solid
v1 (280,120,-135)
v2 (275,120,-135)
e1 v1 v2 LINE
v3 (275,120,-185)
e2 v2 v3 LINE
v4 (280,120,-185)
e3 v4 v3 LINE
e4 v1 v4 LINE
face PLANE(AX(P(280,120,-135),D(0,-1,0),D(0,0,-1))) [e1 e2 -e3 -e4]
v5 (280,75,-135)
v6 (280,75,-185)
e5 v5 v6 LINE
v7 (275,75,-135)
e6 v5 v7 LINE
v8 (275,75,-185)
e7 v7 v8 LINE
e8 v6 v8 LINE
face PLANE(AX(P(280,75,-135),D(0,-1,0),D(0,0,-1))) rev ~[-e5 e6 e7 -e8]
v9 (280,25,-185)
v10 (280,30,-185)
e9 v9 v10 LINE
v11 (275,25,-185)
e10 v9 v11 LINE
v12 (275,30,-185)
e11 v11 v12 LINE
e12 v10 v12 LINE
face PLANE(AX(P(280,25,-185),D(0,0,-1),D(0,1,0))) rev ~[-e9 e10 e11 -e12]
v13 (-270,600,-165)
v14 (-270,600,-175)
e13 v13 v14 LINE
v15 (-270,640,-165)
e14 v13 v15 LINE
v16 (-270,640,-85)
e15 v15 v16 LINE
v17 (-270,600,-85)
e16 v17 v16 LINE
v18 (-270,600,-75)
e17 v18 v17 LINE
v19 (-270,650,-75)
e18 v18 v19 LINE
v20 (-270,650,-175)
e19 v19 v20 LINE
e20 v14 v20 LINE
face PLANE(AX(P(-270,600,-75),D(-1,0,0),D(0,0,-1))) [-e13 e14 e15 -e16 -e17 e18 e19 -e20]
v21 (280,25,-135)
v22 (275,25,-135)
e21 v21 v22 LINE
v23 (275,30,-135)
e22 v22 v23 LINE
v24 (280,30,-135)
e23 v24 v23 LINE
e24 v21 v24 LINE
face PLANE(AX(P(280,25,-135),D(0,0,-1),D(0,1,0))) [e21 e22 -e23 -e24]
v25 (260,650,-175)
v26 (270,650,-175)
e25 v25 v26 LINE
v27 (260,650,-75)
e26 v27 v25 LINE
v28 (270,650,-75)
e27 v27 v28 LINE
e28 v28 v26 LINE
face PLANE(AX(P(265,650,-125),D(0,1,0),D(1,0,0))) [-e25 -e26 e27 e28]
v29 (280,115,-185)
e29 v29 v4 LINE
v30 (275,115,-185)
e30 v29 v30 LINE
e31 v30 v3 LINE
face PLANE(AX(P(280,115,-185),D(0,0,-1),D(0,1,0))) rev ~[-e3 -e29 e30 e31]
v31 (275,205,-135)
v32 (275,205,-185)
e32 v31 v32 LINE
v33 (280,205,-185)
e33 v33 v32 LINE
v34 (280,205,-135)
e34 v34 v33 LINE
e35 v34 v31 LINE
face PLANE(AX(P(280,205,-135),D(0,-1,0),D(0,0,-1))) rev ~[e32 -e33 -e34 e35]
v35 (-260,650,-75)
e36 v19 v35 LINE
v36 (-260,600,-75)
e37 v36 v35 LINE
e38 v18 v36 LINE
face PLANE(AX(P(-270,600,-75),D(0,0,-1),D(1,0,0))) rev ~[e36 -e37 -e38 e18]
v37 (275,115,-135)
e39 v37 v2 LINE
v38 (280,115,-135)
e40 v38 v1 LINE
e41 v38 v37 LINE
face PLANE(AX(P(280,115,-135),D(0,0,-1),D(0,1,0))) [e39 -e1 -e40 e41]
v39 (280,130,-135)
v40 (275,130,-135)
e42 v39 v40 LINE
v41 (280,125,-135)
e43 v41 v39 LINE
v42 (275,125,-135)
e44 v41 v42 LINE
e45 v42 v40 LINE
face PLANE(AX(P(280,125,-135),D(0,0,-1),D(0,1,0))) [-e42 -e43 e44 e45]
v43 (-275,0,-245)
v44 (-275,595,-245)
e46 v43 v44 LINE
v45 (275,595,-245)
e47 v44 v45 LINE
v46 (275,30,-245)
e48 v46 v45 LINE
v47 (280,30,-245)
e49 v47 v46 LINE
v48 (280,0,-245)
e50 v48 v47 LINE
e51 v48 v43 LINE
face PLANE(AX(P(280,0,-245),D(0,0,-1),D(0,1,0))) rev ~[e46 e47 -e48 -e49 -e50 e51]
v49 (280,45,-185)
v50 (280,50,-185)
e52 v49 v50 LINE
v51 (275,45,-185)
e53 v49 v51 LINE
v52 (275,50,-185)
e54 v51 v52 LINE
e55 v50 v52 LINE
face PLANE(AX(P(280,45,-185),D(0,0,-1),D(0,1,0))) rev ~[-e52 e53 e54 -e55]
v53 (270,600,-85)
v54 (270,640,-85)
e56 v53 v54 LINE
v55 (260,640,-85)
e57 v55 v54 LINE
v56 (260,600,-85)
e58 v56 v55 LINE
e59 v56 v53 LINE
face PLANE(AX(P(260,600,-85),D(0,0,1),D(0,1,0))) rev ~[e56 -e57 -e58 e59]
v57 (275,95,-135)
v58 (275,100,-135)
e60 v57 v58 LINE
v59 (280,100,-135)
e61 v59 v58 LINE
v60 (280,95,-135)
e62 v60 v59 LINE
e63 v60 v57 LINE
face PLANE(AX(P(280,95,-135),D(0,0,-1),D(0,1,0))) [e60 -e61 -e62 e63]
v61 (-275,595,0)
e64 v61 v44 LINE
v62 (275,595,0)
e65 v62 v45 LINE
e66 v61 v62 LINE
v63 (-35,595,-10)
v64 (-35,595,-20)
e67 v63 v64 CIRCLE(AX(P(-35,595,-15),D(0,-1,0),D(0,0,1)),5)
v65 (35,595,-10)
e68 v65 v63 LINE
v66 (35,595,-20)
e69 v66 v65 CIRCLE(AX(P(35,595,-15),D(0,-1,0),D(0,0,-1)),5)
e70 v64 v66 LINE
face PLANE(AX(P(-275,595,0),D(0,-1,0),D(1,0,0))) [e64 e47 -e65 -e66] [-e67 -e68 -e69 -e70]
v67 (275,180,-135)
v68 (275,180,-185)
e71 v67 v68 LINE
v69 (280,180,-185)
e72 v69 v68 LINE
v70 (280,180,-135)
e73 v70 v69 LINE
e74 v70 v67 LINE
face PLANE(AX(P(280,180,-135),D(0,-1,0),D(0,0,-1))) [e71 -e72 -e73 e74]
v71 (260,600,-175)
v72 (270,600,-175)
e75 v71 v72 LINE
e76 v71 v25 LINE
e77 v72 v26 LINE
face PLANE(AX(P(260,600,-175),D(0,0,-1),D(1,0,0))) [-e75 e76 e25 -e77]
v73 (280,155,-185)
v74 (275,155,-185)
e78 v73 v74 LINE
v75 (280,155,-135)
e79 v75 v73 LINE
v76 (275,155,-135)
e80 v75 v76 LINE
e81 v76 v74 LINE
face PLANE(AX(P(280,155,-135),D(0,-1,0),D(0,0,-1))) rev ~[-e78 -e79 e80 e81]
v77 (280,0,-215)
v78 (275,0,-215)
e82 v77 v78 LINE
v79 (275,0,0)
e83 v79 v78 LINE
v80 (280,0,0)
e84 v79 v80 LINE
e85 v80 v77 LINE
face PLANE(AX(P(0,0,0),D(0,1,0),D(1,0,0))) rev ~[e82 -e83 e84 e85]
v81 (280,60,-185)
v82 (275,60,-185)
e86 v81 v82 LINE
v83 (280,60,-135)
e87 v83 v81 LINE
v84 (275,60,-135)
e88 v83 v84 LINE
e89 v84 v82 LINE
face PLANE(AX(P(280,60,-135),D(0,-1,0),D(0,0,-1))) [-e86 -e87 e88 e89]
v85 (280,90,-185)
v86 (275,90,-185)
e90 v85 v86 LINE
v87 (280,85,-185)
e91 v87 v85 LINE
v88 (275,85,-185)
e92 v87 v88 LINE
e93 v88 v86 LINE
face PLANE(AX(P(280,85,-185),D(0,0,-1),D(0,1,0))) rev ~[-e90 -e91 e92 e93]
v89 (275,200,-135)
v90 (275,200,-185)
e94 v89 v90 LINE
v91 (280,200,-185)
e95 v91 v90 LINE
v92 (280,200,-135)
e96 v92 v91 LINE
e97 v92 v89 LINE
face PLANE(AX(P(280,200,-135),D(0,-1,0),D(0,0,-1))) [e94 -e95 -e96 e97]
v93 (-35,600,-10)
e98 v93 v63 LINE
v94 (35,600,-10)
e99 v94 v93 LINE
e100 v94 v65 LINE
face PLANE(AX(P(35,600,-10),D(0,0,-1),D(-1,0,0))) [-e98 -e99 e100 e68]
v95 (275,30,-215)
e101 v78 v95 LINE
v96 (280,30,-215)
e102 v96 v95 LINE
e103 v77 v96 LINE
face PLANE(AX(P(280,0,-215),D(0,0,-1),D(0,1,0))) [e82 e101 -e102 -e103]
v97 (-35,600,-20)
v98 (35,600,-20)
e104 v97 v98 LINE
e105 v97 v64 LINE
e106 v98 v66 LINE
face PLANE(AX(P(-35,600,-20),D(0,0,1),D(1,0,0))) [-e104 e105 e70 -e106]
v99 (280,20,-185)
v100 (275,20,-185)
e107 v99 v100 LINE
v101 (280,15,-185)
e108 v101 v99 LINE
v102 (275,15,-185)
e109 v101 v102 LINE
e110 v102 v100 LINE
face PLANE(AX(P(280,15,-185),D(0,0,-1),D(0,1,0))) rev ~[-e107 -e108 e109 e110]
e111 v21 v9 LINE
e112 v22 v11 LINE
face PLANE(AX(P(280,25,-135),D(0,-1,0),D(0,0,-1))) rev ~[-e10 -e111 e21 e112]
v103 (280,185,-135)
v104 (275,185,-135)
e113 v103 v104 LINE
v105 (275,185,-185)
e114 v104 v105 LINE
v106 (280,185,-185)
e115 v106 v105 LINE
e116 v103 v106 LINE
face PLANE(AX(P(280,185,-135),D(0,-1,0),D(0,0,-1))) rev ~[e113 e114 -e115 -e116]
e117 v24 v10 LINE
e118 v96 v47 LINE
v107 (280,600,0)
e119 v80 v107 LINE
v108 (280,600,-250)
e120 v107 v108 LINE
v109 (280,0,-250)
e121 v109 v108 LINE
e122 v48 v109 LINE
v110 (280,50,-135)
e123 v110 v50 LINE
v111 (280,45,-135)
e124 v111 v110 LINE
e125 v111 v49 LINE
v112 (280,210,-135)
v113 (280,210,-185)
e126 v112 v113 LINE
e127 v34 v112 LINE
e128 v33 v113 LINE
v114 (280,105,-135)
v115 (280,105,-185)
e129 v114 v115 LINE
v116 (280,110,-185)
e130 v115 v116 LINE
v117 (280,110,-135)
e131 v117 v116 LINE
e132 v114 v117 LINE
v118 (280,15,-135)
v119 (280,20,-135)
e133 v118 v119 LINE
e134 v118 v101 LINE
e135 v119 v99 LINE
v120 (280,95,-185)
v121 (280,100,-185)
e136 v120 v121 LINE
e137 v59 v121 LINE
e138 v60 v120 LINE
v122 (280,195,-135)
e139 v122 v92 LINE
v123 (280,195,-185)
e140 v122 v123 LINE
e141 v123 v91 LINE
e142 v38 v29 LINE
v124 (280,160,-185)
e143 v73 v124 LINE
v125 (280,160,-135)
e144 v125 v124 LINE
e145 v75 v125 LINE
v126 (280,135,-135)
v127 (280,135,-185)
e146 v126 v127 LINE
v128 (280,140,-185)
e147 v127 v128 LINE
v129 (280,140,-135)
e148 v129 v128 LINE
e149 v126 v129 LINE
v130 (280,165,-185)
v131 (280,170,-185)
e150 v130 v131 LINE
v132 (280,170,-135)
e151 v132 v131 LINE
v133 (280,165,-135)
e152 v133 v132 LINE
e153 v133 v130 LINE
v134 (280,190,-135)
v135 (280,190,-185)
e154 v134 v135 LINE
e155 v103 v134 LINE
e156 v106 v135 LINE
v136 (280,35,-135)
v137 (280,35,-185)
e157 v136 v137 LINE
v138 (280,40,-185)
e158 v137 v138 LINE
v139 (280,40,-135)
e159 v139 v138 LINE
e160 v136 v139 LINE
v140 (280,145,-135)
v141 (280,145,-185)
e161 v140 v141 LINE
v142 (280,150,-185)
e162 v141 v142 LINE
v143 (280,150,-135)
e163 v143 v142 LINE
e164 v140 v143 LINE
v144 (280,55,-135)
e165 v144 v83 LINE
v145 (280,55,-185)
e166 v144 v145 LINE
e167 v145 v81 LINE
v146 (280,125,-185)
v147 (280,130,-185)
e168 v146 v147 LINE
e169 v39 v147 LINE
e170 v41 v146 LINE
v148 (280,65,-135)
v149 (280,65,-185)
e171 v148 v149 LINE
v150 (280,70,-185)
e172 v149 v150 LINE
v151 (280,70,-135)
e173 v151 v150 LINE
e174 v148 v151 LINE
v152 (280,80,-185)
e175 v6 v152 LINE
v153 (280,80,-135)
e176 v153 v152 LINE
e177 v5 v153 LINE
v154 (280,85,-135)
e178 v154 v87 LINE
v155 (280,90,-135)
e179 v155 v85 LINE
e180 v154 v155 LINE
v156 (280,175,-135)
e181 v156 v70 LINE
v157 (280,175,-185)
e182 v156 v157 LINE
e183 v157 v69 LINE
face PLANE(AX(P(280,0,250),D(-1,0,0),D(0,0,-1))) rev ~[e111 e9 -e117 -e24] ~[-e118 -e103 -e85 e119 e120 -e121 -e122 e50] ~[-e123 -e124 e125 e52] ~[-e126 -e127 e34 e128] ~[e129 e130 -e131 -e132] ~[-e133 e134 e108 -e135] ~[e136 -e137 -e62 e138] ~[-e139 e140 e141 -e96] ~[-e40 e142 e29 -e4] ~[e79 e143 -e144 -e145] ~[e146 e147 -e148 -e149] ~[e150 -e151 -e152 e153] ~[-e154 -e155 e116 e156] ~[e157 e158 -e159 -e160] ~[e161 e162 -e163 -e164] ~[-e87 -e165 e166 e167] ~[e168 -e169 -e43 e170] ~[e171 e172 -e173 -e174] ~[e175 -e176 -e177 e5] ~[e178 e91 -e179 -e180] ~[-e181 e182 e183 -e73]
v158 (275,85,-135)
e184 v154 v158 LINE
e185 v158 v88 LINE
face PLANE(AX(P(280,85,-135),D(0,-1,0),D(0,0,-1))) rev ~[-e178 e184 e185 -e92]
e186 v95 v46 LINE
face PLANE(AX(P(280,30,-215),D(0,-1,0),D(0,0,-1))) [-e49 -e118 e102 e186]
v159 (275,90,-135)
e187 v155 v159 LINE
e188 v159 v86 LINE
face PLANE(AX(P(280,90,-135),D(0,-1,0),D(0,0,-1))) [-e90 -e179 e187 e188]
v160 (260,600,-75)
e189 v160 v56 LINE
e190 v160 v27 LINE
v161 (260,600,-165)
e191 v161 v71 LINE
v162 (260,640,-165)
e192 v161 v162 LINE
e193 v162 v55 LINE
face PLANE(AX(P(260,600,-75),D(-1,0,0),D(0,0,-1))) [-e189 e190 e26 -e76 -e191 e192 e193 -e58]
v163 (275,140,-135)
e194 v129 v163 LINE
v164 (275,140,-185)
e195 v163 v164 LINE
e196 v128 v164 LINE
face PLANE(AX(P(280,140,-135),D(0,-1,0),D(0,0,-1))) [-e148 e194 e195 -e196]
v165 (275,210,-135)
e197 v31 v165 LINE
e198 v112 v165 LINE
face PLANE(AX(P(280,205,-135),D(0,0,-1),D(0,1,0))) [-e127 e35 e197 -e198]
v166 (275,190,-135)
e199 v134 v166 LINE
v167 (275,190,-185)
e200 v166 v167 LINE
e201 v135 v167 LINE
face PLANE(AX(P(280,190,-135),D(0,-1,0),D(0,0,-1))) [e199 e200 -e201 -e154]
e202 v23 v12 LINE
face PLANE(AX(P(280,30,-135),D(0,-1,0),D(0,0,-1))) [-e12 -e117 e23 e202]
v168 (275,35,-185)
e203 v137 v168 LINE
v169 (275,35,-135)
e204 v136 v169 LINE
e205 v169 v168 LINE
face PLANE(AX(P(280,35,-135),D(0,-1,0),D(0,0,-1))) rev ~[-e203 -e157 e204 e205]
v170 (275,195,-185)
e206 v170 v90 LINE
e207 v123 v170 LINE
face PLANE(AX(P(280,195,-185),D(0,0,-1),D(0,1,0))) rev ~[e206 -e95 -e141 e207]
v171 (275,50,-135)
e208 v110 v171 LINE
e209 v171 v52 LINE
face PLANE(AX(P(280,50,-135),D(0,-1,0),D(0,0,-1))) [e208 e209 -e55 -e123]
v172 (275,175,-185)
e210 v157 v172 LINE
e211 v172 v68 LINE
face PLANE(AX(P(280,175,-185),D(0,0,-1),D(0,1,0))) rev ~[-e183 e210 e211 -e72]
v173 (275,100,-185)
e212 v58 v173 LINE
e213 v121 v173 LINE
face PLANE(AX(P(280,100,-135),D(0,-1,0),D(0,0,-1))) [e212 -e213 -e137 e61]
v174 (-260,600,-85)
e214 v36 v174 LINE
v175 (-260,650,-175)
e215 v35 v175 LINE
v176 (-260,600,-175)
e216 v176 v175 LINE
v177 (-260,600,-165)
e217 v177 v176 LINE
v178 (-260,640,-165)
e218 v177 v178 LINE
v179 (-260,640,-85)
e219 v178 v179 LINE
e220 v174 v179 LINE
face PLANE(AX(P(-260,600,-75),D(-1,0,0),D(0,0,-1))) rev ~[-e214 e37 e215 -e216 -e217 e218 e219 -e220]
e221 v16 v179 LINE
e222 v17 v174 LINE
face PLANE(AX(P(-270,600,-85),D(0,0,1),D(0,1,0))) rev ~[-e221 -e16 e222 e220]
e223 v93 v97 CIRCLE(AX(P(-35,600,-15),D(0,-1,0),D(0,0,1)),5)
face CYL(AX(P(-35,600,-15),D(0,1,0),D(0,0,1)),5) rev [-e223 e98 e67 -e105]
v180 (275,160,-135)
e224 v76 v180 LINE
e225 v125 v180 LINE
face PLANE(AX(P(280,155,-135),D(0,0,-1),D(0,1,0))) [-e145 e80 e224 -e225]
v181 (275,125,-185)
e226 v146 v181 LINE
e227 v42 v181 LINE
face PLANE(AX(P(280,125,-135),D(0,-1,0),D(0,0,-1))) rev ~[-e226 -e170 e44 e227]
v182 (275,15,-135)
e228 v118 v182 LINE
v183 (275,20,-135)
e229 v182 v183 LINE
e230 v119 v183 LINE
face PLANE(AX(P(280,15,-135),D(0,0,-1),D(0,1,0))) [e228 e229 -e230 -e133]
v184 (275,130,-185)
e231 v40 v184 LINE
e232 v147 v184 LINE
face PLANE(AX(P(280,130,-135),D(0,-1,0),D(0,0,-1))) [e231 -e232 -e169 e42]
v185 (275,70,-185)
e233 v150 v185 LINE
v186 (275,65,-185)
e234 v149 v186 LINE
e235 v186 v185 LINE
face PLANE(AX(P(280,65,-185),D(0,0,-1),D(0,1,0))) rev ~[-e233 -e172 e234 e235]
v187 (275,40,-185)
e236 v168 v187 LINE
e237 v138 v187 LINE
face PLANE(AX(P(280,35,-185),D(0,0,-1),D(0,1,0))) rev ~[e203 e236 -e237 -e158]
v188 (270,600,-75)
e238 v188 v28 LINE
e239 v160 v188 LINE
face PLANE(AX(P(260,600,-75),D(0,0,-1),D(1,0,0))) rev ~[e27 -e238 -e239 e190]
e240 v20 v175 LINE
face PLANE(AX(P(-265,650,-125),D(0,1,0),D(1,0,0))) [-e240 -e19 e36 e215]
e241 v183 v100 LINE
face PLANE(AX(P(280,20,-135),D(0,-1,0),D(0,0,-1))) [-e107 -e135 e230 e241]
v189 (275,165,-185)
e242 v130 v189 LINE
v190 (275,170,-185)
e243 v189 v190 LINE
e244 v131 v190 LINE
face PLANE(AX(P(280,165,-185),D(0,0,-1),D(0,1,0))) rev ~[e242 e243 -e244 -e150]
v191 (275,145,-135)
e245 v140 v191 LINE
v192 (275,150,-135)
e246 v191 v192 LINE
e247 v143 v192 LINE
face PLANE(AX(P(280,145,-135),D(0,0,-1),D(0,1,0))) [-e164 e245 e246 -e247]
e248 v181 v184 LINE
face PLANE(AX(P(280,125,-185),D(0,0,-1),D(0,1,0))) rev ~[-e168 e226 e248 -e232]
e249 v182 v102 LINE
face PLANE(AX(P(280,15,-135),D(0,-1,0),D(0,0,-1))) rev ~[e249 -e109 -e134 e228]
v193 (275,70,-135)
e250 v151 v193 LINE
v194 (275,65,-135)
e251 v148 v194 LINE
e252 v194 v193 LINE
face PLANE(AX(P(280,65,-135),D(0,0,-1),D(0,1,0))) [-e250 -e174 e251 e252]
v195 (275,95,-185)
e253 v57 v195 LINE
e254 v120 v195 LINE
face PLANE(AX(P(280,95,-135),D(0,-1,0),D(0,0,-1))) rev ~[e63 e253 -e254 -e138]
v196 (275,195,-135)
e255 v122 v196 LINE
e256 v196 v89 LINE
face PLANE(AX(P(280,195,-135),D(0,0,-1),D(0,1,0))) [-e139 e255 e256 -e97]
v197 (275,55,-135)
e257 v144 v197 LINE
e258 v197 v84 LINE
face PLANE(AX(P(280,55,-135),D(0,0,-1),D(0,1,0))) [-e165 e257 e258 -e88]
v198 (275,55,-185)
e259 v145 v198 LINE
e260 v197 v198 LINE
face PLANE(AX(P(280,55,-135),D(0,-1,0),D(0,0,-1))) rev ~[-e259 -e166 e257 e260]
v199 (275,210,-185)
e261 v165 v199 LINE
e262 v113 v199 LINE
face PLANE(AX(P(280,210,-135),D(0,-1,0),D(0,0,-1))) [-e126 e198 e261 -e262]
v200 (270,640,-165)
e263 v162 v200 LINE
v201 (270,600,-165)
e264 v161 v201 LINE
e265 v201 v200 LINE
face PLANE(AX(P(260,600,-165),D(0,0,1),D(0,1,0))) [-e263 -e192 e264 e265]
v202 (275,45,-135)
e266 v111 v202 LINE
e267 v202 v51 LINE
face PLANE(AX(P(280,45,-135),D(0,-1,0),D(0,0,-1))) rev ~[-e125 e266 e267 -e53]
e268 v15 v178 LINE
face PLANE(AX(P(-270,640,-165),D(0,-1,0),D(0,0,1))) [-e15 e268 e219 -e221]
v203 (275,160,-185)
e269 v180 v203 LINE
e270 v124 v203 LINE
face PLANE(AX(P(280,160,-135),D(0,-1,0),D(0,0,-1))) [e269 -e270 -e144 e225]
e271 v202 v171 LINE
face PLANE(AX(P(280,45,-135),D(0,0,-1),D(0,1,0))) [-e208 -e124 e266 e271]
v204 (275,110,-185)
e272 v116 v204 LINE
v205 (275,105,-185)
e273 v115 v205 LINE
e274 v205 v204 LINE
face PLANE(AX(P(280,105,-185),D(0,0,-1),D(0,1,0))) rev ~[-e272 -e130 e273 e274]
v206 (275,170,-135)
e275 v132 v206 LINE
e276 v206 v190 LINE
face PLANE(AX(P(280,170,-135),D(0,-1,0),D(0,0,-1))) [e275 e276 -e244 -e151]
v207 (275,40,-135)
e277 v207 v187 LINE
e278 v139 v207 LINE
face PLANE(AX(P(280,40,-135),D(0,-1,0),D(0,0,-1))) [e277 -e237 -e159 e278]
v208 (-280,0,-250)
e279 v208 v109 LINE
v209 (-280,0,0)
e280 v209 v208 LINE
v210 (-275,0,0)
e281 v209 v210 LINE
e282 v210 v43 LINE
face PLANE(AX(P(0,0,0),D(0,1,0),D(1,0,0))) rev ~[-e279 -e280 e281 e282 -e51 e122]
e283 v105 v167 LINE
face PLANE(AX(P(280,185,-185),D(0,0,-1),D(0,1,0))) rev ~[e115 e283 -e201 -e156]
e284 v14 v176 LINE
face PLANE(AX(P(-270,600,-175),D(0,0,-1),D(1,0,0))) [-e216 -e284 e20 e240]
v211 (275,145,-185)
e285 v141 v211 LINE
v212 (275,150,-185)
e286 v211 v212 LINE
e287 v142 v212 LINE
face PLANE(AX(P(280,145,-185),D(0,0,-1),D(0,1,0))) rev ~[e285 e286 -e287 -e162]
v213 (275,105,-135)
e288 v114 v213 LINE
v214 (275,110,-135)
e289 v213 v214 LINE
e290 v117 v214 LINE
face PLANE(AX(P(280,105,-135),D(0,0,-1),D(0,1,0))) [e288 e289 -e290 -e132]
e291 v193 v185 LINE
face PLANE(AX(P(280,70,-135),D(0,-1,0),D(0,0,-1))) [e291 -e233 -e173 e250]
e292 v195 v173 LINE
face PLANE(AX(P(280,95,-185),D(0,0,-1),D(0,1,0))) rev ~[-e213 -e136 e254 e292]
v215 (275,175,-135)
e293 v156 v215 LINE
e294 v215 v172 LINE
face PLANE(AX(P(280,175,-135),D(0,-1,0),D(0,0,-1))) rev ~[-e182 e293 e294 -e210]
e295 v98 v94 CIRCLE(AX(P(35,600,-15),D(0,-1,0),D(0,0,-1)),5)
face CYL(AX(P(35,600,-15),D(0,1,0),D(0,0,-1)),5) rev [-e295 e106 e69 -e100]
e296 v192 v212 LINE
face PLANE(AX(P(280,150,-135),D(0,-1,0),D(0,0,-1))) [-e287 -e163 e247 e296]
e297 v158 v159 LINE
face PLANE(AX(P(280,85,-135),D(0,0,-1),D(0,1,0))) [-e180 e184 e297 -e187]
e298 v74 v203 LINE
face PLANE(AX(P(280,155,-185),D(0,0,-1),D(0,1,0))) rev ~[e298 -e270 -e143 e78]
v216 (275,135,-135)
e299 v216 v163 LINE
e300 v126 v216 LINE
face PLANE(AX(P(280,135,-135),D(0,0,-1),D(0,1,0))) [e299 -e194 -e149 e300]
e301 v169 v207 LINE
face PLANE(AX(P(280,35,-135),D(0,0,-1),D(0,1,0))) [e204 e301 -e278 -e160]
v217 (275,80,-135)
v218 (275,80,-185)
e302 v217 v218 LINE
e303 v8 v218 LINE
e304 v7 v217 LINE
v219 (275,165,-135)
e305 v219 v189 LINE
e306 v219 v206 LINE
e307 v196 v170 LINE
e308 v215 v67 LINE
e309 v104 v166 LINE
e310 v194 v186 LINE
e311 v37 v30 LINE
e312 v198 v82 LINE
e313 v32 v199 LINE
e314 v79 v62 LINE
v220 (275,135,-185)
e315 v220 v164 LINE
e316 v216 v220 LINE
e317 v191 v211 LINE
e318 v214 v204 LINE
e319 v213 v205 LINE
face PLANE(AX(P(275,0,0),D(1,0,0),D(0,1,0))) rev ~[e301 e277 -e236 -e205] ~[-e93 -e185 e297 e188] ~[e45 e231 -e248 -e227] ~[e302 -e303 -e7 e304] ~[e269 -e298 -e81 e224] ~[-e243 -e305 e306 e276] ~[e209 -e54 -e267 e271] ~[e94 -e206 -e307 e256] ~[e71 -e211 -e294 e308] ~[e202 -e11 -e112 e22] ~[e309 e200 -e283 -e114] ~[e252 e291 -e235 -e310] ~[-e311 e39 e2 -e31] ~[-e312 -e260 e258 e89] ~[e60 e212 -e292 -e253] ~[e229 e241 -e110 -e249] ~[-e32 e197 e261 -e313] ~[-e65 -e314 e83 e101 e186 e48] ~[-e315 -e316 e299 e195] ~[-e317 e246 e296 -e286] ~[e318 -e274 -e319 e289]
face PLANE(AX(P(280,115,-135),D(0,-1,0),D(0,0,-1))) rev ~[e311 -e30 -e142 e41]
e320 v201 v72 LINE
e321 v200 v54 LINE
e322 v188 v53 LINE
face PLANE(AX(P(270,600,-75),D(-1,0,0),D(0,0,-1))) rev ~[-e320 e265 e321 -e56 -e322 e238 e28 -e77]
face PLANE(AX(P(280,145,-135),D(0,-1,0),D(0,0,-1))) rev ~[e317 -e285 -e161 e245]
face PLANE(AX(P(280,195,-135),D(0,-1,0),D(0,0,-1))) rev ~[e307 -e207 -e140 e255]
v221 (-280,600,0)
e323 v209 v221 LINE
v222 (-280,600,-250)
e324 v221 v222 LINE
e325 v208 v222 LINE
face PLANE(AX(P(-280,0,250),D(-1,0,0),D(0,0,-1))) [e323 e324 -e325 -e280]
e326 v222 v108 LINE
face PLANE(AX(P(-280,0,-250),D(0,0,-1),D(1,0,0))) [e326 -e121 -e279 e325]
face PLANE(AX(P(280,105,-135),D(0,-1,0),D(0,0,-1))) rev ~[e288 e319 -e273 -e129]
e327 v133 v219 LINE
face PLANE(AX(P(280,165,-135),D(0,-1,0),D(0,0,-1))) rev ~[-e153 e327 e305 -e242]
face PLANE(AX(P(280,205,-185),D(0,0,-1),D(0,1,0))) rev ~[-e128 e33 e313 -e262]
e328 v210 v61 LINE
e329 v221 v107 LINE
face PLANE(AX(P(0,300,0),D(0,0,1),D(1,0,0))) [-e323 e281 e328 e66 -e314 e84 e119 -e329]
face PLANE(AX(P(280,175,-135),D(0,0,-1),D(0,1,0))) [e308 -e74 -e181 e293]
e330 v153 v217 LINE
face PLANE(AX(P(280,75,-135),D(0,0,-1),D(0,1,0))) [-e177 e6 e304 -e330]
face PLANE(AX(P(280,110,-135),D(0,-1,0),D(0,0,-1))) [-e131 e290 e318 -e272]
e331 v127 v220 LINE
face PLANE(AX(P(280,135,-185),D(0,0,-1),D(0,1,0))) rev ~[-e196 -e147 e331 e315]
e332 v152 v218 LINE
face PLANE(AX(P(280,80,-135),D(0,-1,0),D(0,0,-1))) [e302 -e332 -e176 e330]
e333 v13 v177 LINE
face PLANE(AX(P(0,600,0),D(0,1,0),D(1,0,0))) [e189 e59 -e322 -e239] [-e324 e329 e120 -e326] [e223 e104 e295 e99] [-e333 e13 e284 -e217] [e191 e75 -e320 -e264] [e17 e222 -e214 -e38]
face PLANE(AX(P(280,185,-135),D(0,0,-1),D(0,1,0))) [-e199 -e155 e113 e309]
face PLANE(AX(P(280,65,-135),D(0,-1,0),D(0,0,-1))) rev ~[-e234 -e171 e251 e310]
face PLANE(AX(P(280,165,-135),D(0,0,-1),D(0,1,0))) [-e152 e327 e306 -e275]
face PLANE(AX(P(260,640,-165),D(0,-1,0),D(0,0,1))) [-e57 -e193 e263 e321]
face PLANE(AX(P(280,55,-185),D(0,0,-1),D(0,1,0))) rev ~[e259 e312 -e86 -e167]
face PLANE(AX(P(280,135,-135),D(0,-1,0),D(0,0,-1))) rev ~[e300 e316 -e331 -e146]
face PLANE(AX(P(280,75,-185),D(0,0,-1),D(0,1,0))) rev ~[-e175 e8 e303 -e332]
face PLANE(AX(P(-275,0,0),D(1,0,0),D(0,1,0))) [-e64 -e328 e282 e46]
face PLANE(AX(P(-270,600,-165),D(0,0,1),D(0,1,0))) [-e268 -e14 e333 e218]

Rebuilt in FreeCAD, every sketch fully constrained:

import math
import FreeCAD as App
import Part
import Sketcher

doc = App.newDocument("Part")
body = doc.addObject("PartDesign::Body", "Body")

sketch1 = body.newObject("Sketcher::SketchObject", "Sketch")
sketch1.AttachmentSupport = (doc.getObject("XZ_Plane"), [""])
sketch1.MapMode = "FlatFace"
sketch1.addGeometry([
    Part.LineSegment(App.Vector(-280, -250, 0), App.Vector(-280, 250, 0)),
    Part.LineSegment(App.Vector(-280, 250, 0), App.Vector(280, 250, 0)),
    Part.LineSegment(App.Vector(280, 250, 0), App.Vector(280, -250, 0)),
    Part.LineSegment(App.Vector(280, -250, 0), App.Vector(-280, -250, 0)),
], False)
sketch1.addConstraint([
    Sketcher.Constraint("Coincident", 0, 2, 1, 1),
    Sketcher.Constraint("Coincident", 1, 2, 2, 1),
    Sketcher.Constraint("Coincident", 2, 2, 3, 1),
    Sketcher.Constraint("Coincident", 3, 2, 0, 1),
    Sketcher.Constraint("Vertical", 0),
    Sketcher.Constraint("Horizontal", 1),
    Sketcher.Constraint("Vertical", 2),
    Sketcher.Constraint("Horizontal", 3),
    Sketcher.Constraint("Symmetric", 0, 2, 2, 2, -1, 1),
    Sketcher.Constraint("DistanceX", 1, 1, 1, 2, 560.0),
    Sketcher.Constraint("DistanceY", 0, 1, 0, 2, 500.0),
])
pad1 = body.newObject("PartDesign::Pad", "Pad")
pad1.Profile = sketch1
pad1.Length = 600
pad1.Reversed = True

sketch2 = body.newObject("Sketcher::SketchObject", "Sketch001")
sketch2.AttachmentSupport = (doc.getObject("XY_Plane"), [""])
sketch2.MapMode = "FlatFace"
sketch2.AttachmentOffset = App.Placement(App.Vector(0, 0, 250), App.Rotation())
sketch2.addGeometry([
    Part.LineSegment(App.Vector(-285, 605, 0), App.Vector(-285, -5, 0)),
    Part.LineSegment(App.Vector(-285, -5, 0), App.Vector(285, -5, 0)),
    Part.LineSegment(App.Vector(285, -5, 0), App.Vector(285, 605, 0)),
    Part.LineSegment(App.Vector(285, 605, 0), App.Vector(-285, 605, 0)),
], False)
sketch2.addConstraint([
    Sketcher.Constraint("Coincident", 0, 2, 1, 1),
    Sketcher.Constraint("Coincident", 1, 2, 2, 1),
    Sketcher.Constraint("Coincident", 2, 2, 3, 1),
    Sketcher.Constraint("Coincident", 3, 2, 0, 1),
    Sketcher.Constraint("Vertical", 0),
    Sketcher.Constraint("Horizontal", 1),
    Sketcher.Constraint("Vertical", 2),
    Sketcher.Constraint("Horizontal", 3),
    Sketcher.Constraint("DistanceX", 1, 1, 1, 2, 570.0),
    Sketcher.Constraint("DistanceY", 0, 2, 0, 1, 610.0),
    Sketcher.Constraint("DistanceX", 0, 2, -1, 1, 285.0),
    Sketcher.Constraint("DistanceY", 0, 2, -1, 1, 5.0),
])
pocket1 = body.newObject("PartDesign::Pocket", "Pocket")
pocket1.Profile = sketch2
pocket1.Length = 250

sketch3 = body.newObject("Sketcher::SketchObject", "Sketch002")
sketch3.AttachmentSupport = (doc.getObject("XY_Plane"), [""])
sketch3.MapMode = "FlatFace"
sketch3.addGeometry([
    Part.LineSegment(App.Vector(-275, 595, 0), App.Vector(-275, 0, 0)),
    Part.LineSegment(App.Vector(-275, 0, 0), App.Vector(275, 0, 0)),
    Part.LineSegment(App.Vector(275, 0, 0), App.Vector(275, 595, 0)),
    Part.LineSegment(App.Vector(275, 595, 0), App.Vector(-275, 595, 0)),
], False)
sketch3.addConstraint([
    Sketcher.Constraint("Coincident", 0, 2, 1, 1),
    Sketcher.Constraint("Coincident", 1, 2, 2, 1),
    Sketcher.Constraint("Coincident", 2, 2, 3, 1),
    Sketcher.Constraint("Coincident", 3, 2, 0, 1),
    Sketcher.Constraint("Vertical", 0),
    Sketcher.Constraint("Horizontal", 1),
    Sketcher.Constraint("Vertical", 2),
    Sketcher.Constraint("Horizontal", 3),
    Sketcher.Constraint("Symmetric", 0, 2, 1, 2, -1, 1),
    Sketcher.Constraint("DistanceX", 1, 1, 1, 2, 550.0),
    Sketcher.Constraint("DistanceY", 0, 2, 0, 1, 595.0),
])
pocket2 = body.newObject("PartDesign::Pocket", "Pocket001")
pocket2.Profile = sketch3
pocket2.Length = 245

sketch4 = body.newObject("Sketcher::SketchObject", "Sketch003")
sketch4.AttachmentSupport = (doc.getObject("YZ_Plane"), [""])
sketch4.MapMode = "FlatFace"
sketch4.AttachmentOffset = App.Placement(App.Vector(0, 0, 280), App.Rotation())
sketch4.addGeometry([
    Part.LineSegment(App.Vector(30, -215, 0), App.Vector(0, -215, 0)),
    Part.LineSegment(App.Vector(0, -215, 0), App.Vector(0, -245, 0)),
    Part.LineSegment(App.Vector(0, -245, 0), App.Vector(30, -245, 0)),
    Part.LineSegment(App.Vector(30, -245, 0), App.Vector(30, -215, 0)),
], False)
sketch4.addConstraint([
    Sketcher.Constraint("Coincident", 0, 2, 1, 1),
    Sketcher.Constraint("Coincident", 1, 2, 2, 1),
    Sketcher.Constraint("Coincident", 2, 2, 3, 1),
    Sketcher.Constraint("Coincident", 3, 2, 0, 1),
    Sketcher.Constraint("Horizontal", 0),
    Sketcher.Constraint("Vertical", 1),
    Sketcher.Constraint("Horizontal", 2),
    Sketcher.Constraint("Vertical", 3),
    Sketcher.Constraint("PointOnObject", 0, 2, -2),
    Sketcher.Constraint("Equal", 2, 1),
    Sketcher.Constraint("DistanceX", 0, 2, 0, 1, 30.0),
    Sketcher.Constraint("DistanceY", 0, 2, -1, 1, 215.0),
])
pocket3 = body.newObject("PartDesign::Pocket", "Pocket002")
pocket3.Profile = sketch4
pocket3.Length = 5

sketch5 = body.newObject("Sketcher::SketchObject", "Sketch004")
sketch5.AttachmentSupport = (doc.getObject("YZ_Plane"), [""])
sketch5.MapMode = "FlatFace"
sketch5.AttachmentOffset = App.Placement(App.Vector(0, 0, 280), App.Rotation())
sketch5.addGeometry([
    Part.LineSegment(App.Vector(20, -135, 0), App.Vector(15, -135, 0)),
    Part.LineSegment(App.Vector(15, -135, 0), App.Vector(15, -185, 0)),
    Part.LineSegment(App.Vector(15, -185, 0), App.Vector(20, -185, 0)),
    Part.LineSegment(App.Vector(20, -185, 0), App.Vector(20, -135, 0)),
    Part.LineSegment(App.Vector(30, -135, 0), App.Vector(25, -135, 0)),
    Part.LineSegment(App.Vector(25, -135, 0), App.Vector(25, -185, 0)),
    Part.LineSegment(App.Vector(25, -185, 0), App.Vector(30, -185, 0)),
    Part.LineSegment(App.Vector(30, -185, 0), App.Vector(30, -135, 0)),
    Part.LineSegment(App.Vector(50, -135, 0), App.Vector(45, -135, 0)),
    Part.LineSegment(App.Vector(45, -135, 0), App.Vector(45, -185, 0)),
    Part.LineSegment(App.Vector(45, -185, 0), App.Vector(50, -185, 0)),
    Part.LineSegment(App.Vector(50, -185, 0), App.Vector(50, -135, 0)),
    Part.LineSegment(App.Vector(40, -135, 0), App.Vector(35, -135, 0)),
    Part.LineSegment(App.Vector(35, -135, 0), App.Vector(35, -185, 0)),
    Part.LineSegment(App.Vector(35, -185, 0), App.Vector(40, -185, 0)),
    Part.LineSegment(App.Vector(40, -185, 0), App.Vector(40, -135, 0)),
    Part.LineSegment(App.Vector(70, -135, 0), App.Vector(65, -135, 0)),
    Part.LineSegment(App.Vector(65, -135, 0), App.Vector(65, -185, 0)),
    Part.LineSegment(App.Vector(65, -185, 0), App.Vector(70, -185, 0)),
    Part.LineSegment(App.Vector(70, -185, 0), App.Vector(70, -135, 0)),
    Part.LineSegment(App.Vector(80, -135, 0), App.Vector(75, -135, 0)),
    Part.LineSegment(App.Vector(75, -135, 0), App.Vector(75, -185, 0)),
    Part.LineSegment(App.Vector(75, -185, 0), App.Vector(80, -185, 0)),
    Part.LineSegment(App.Vector(80, -185, 0), App.Vector(80, -135, 0)),
    Part.LineSegment(App.Vector(90, -135, 0), App.Vector(85, -135, 0)),
    Part.LineSegment(App.Vector(85, -135, 0), App.Vector(85, -185, 0)),
    Part.LineSegment(App.Vector(85, -185, 0), App.Vector(90, -185, 0)),
    Part.LineSegment(App.Vector(90, -185, 0), App.Vector(90, -135, 0)),
    Part.LineSegment(App.Vector(60, -135, 0), App.Vector(55, -135, 0)),
    Part.LineSegment(App.Vector(55, -135, 0), App.Vector(55, -185, 0)),
    Part.LineSegment(App.Vector(55, -185, 0), App.Vector(60, -185, 0)),
    Part.LineSegment(App.Vector(60, -185, 0), App.Vector(60, -135, 0)),
    Part.LineSegment(App.Vector(110, -135, 0), App.Vector(105, -135, 0)),
    Part.LineSegment(App.Vector(105, -135, 0), App.Vector(105, -185, 0)),
    Part.LineSegment(App.Vector(105, -185, 0), App.Vector(110, -185, 0)),
    Part.LineSegment(App.Vector(110, -185, 0), App.Vector(110, -135, 0)),
    Part.LineSegment(App.Vector(160, -135, 0), App.Vector(155, -135, 0)),
    Part.LineSegment(App.Vector(155, -135, 0), App.Vector(155, -185, 0)),
    Part.LineSegment(App.Vector(155, -185, 0), App.Vector(160, -185, 0)),
    Part.LineSegment(App.Vector(160, -185, 0), App.Vector(160, -135, 0)),
    Part.LineSegment(App.Vector(120, -135, 0), App.Vector(115, -135, 0)),
    Part.LineSegment(App.Vector(115, -135, 0), App.Vector(115, -185, 0)),
    Part.LineSegment(App.Vector(115, -185, 0), App.Vector(120, -185, 0)),
    Part.LineSegment(App.Vector(120, -185, 0), App.Vector(120, -135, 0)),
    Part.LineSegment(App.Vector(170, -135, 0), App.Vector(165, -135, 0)),
    Part.LineSegment(App.Vector(165, -135, 0), App.Vector(165, -185, 0)),
    Part.LineSegment(App.Vector(165, -185, 0), App.Vector(170, -185, 0)),
    Part.LineSegment(App.Vector(170, -185, 0), App.Vector(170, -135, 0)),
    Part.LineSegment(App.Vector(130, -135, 0), App.Vector(125, -135, 0)),
    Part.LineSegment(App.Vector(125, -135, 0), App.Vector(125, -185, 0)),
    Part.LineSegment(App.Vector(125, -185, 0), App.Vector(130, -185, 0)),
    Part.LineSegment(App.Vector(130, -185, 0), App.Vector(130, -135, 0)),
    Part.LineSegment(App.Vector(100, -135, 0), App.Vector(95, -135, 0)),
    Part.LineSegment(App.Vector(95, -135, 0), App.Vector(95, -185, 0)),
    Part.LineSegment(App.Vector(95, -185, 0), App.Vector(100, -185, 0)),
    Part.LineSegment(App.Vector(100, -185, 0), App.Vector(100, -135, 0)),
    Part.LineSegment(App.Vector(150, -135, 0), App.Vector(145, -135, 0)),
    Part.LineSegment(App.Vector(145, -135, 0), App.Vector(145, -185, 0)),
    Part.LineSegment(App.Vector(145, -185, 0), App.Vector(150, -185, 0)),
    Part.LineSegment(App.Vector(150, -185, 0), App.Vector(150, -135, 0)),
    Part.LineSegment(App.Vector(140, -135, 0), App.Vector(135, -135, 0)),
    Part.LineSegment(App.Vector(135, -135, 0), App.Vector(135, -185, 0)),
    Part.LineSegment(App.Vector(135, -185, 0), App.Vector(140, -185, 0)),
    Part.LineSegment(App.Vector(140, -185, 0), App.Vector(140, -135, 0)),
    Part.LineSegment(App.Vector(180, -135, 0), App.Vector(175, -135, 0)),
    Part.LineSegment(App.Vector(175, -135, 0), App.Vector(175, -185, 0)),
    Part.LineSegment(App.Vector(175, -185, 0), App.Vector(180, -185, 0)),
    Part.LineSegment(App.Vector(180, -185, 0), App.Vector(180, -135, 0)),
    Part.LineSegment(App.Vector(190, -135, 0), App.Vector(185, -135, 0)),
    Part.LineSegment(App.Vector(185, -135, 0), App.Vector(185, -185, 0)),
    Part.LineSegment(App.Vector(185, -185, 0), App.Vector(190, -185, 0)),
    Part.LineSegment(App.Vector(190, -185, 0), App.Vector(190, -135, 0)),
    Part.LineSegment(App.Vector(210, -135, 0), App.Vector(205, -135, 0)),
    Part.LineSegment(App.Vector(205, -135, 0), App.Vector(205, -185, 0)),
    Part.LineSegment(App.Vector(205, -185, 0), App.Vector(210, -185, 0)),
    Part.LineSegment(App.Vector(210, -185, 0), App.Vector(210, -135, 0)),
    Part.LineSegment(App.Vector(200, -135, 0), App.Vector(195, -135, 0)),
    Part.LineSegment(App.Vector(195, -135, 0), App.Vector(195, -185, 0)),
    Part.LineSegment(App.Vector(195, -185, 0), App.Vector(200, -185, 0)),
    Part.LineSegment(App.Vector(200, -185, 0), App.Vector(200, -135, 0)),
], False)
sketch5.addConstraint([
    Sketcher.Constraint("Coincident", 0, 2, 1, 1),
    Sketcher.Constraint("Coincident", 1, 2, 2, 1),
    Sketcher.Constraint("Coincident", 2, 2, 3, 1),
    Sketcher.Constraint("Coincident", 3, 2, 0, 1),
    Sketcher.Constraint("Coincident", 4, 2, 5, 1),
    Sketcher.Constraint("Coincident", 5, 2, 6, 1),
    Sketcher.Constraint("Coincident", 6, 2, 7, 1),
    Sketcher.Constraint("Coincident", 7, 2, 4, 1),
    Sketcher.Constraint("Coincident", 8, 2, 9, 1),
    Sketcher.Constraint("Coincident", 9, 2, 10, 1),
    Sketcher.Constraint("Coincident", 10, 2, 11, 1),
    Sketcher.Constraint("Coincident", 11, 2, 8, 1),
    Sketcher.Constraint("Coincident", 12, 2, 13, 1),
    Sketcher.Constraint("Coincident", 13, 2, 14, 1),
    Sketcher.Constraint("Coincident", 14, 2, 15, 1),
    Sketcher.Constraint("Coincident", 15, 2, 12, 1),
    Sketcher.Constraint("Coincident", 16, 2, 17, 1),
    Sketcher.Constraint("Coincident", 17, 2, 18, 1),
    Sketcher.Constraint("Coincident", 18, 2, 19, 1),
    Sketcher.Constraint("Coincident", 19, 2, 16, 1),
    Sketcher.Constraint("Coincident", 20, 2, 21, 1),
    Sketcher.Constraint("Coincident", 21, 2, 22, 1),
    Sketcher.Constraint("Coincident", 22, 2, 23, 1),
    Sketcher.Constraint("Coincident", 23, 2, 20, 1),
    Sketcher.Constraint("Coincident", 24, 2, 25, 1),
    Sketcher.Constraint("Coincident", 25, 2, 26, 1),
    Sketcher.Constraint("Coincident", 26, 2, 27, 1),
    Sketcher.Constraint("Coincident", 27, 2, 24, 1),
    Sketcher.Constraint("Coincident", 28, 2, 29, 1),
    Sketcher.Constraint("Coincident", 29, 2, 30, 1),
    Sketcher.Constraint("Coincident", 30, 2, 31, 1),
    Sketcher.Constraint("Coincident", 31, 2, 28, 1),
    Sketcher.Constraint("Coincident", 32, 2, 33, 1),
    Sketcher.Constraint("Coincident", 33, 2, 34, 1),
    Sketcher.Constraint("Coincident", 34, 2, 35, 1),
    Sketcher.Constraint("Coincident", 35, 2, 32, 1),
    Sketcher.Constraint("Coincident", 36, 2, 37, 1),
    Sketcher.Constraint("Coincident", 37, 2, 38, 1),
    Sketcher.Constraint("Coincident", 38, 2, 39, 1),
    Sketcher.Constraint("Coincident", 39, 2, 36, 1),
    Sketcher.Constraint("Coincident", 40, 2, 41, 1),
    Sketcher.Constraint("Coincident", 41, 2, 42, 1),
    Sketcher.Constraint("Coincident", 42, 2, 43, 1),
    Sketcher.Constraint("Coincident", 43, 2, 40, 1),
    Sketcher.Constraint("Coincident", 44, 2, 45, 1),
    Sketcher.Constraint("Coincident", 45, 2, 46, 1),
    Sketcher.Constraint("Coincident", 46, 2, 47, 1),
    Sketcher.Constraint("Coincident", 47, 2, 44, 1),
    Sketcher.Constraint("Coincident", 48, 2, 49, 1),
    Sketcher.Constraint("Coincident", 49, 2, 50, 1),
    Sketcher.Constraint("Coincident", 50, 2, 51, 1),
    Sketcher.Constraint("Coincident", 51, 2, 48, 1),
    Sketcher.Constraint("Coincident", 52, 2, 53, 1),
    Sketcher.Constraint("Coincident", 53, 2, 54, 1),
    Sketcher.Constraint("Coincident", 54, 2, 55, 1),
    Sketcher.Constraint("Coincident", 55, 2, 52, 1),
    Sketcher.Constraint("Coincident", 56, 2, 57, 1),
    Sketcher.Constraint("Coincident", 57, 2, 58, 1),
    Sketcher.Constraint("Coincident", 58, 2, 59, 1),
    Sketcher.Constraint("Coincident", 59, 2, 56, 1),
    Sketcher.Constraint("Coincident", 60, 2, 61, 1),
    Sketcher.Constraint("Coincident", 61, 2, 62, 1),
    Sketcher.Constraint("Coincident", 62, 2, 63, 1),
    Sketcher.Constraint("Coincident", 63, 2, 60, 1),
    Sketcher.Constraint("Coincident", 64, 2, 65, 1),
    Sketcher.Constraint("Coincident", 65, 2, 66, 1),
    Sketcher.Constraint("Coincident", 66, 2, 67, 1),
    Sketcher.Constraint("Coincident", 67, 2, 64, 1),
    Sketcher.Constraint("Coincident", 68, 2, 69, 1),
    Sketcher.Constraint("Coincident", 69, 2, 70, 1),
    Sketcher.Constraint("Coincident", 70, 2, 71, 1),
    Sketcher.Constraint("Coincident", 71, 2, 68, 1),
    Sketcher.Constraint("Coincident", 72, 2, 73, 1),
    Sketcher.Constraint("Coincident", 73, 2, 74, 1),
    Sketcher.Constraint("Coincident", 74, 2, 75, 1),
    Sketcher.Constraint("Coincident", 75, 2, 72, 1),
    Sketcher.Constraint("Coincident", 76, 2, 77, 1),
    Sketcher.Constraint("Coincident", 77, 2, 78, 1),
    Sketcher.Constraint("Coincident", 78, 2, 79, 1),
    Sketcher.Constraint("Coincident", 79, 2, 76, 1),
    Sketcher.Constraint("Horizontal", 0),
    Sketcher.Constraint("Vertical", 1),
    Sketcher.Constraint("Horizontal", 2),
    Sketcher.Constraint("Vertical", 3),
    Sketcher.Constraint("Horizontal", 4),
    Sketcher.Constraint("Vertical", 5),
    Sketcher.Constraint("Horizontal", 6),
    Sketcher.Constraint("Vertical", 7),
    Sketcher.Constraint("Horizontal", 8),
    Sketcher.Constraint("Vertical", 9),
    Sketcher.Constraint("Horizontal", 10),
    Sketcher.Constraint("Vertical", 11),
    Sketcher.Constraint("Horizontal", 12),
    Sketcher.Constraint("Vertical", 13),
    Sketcher.Constraint("Horizontal", 14),
    Sketcher.Constraint("Vertical", 15),
    Sketcher.Constraint("Horizontal", 16),
    Sketcher.Constraint("Vertical", 17),
    Sketcher.Constraint("Horizontal", 18),
    Sketcher.Constraint("Vertical", 19),
    Sketcher.Constraint("Horizontal", 20),
    Sketcher.Constraint("Vertical", 21),
    Sketcher.Constraint("Horizontal", 22),
    Sketcher.Constraint("Vertical", 23),
    Sketcher.Constraint("Horizontal", 24),
    Sketcher.Constraint("Vertical", 25),
    Sketcher.Constraint("Horizontal", 26),
    Sketcher.Constraint("Vertical", 27),
    Sketcher.Constraint("Horizontal", 28),
    Sketcher.Constraint("Vertical", 29),
    Sketcher.Constraint("Horizontal", 30),
    Sketcher.Constraint("Vertical", 31),
    Sketcher.Constraint("Horizontal", 32),
    Sketcher.Constraint("Vertical", 33),
    Sketcher.Constraint("Horizontal", 34),
    Sketcher.Constraint("Vertical", 35),
    Sketcher.Constraint("Horizontal", 36),
    Sketcher.Constraint("Vertical", 37),
    Sketcher.Constraint("Horizontal", 38),
    Sketcher.Constraint("Vertical", 39),
    Sketcher.Constraint("Horizontal", 40),
    Sketcher.Constraint("Vertical", 41),
    Sketcher.Constraint("Horizontal", 42),
    Sketcher.Constraint("Vertical", 43),
    Sketcher.Constraint("Horizontal", 44),
    Sketcher.Constraint("Vertical", 45),
    Sketcher.Constraint("Horizontal", 46),
    Sketcher.Constraint("Vertical", 47),
    Sketcher.Constraint("Horizontal", 48),
    Sketcher.Constraint("Vertical", 49),
    Sketcher.Constraint("Horizontal", 50),
    Sketcher.Constraint("Vertical", 51),
    Sketcher.Constraint("Horizontal", 52),
    Sketcher.Constraint("Vertical", 53),
    Sketcher.Constraint("Horizontal", 54),
    Sketcher.Constraint("Vertical", 55),
    Sketcher.Constraint("Horizontal", 56),
    Sketcher.Constraint("Vertical", 57),
    Sketcher.Constraint("Horizontal", 58),
    Sketcher.Constraint("Vertical", 59),
    Sketcher.Constraint("Horizontal", 60),
    Sketcher.Constraint("Vertical", 61),
    Sketcher.Constraint("Horizontal", 62),
    Sketcher.Constraint("Vertical", 63),
    Sketcher.Constraint("Horizontal", 64),
    Sketcher.Constraint("Vertical", 65),
    Sketcher.Constraint("Horizontal", 66),
    Sketcher.Constraint("Vertical", 67),
    Sketcher.Constraint("Horizontal", 68),
    Sketcher.Constraint("Vertical", 69),
    Sketcher.Constraint("Horizontal", 70),
    Sketcher.Constraint("Vertical", 71),
    Sketcher.Constraint("Horizontal", 72),
    Sketcher.Constraint("Vertical", 73),
    Sketcher.Constraint("Horizontal", 74),
    Sketcher.Constraint("Vertical", 75),
    Sketcher.Constraint("Horizontal", 76),
    Sketcher.Constraint("Vertical", 77),
    Sketcher.Constraint("Horizontal", 78),
    Sketcher.Constraint("Vertical", 79),
    Sketcher.Constraint("Horizontal", 3, 2, 4, 2),
    Sketcher.Constraint("Horizontal", 2, 2, 5, 2),
    Sketcher.Constraint("Horizontal", 7, 2, 8, 2),
    Sketcher.Constraint("Horizontal", 6, 2, 9, 2),
    Sketcher.Constraint("Horizontal", 11, 2, 12, 2),
    Sketcher.Constraint("Horizontal", 10, 2, 13, 2),
    Sketcher.Constraint("Horizontal", 15, 2, 16, 2),
    Sketcher.Constraint("Horizontal", 14, 2, 17, 2),
    Sketcher.Constraint("Horizontal", 19, 2, 20, 2),
    Sketcher.Constraint("Horizontal", 18, 2, 21, 2),
    Sketcher.Constraint("Horizontal", 23, 2, 24, 2),
    Sketcher.Constraint("Horizontal", 22, 2, 25, 2),
    Sketcher.Constraint("Horizontal", 27, 2, 28, 2),
    Sketcher.Constraint("Horizontal", 26, 2, 29, 2),
    Sketcher.Constraint("Horizontal", 31, 2, 32, 2),
    Sketcher.Constraint("Horizontal", 30, 2, 33, 2),
    Sketcher.Constraint("Horizontal", 35, 2, 36, 2),
    Sketcher.Constraint("Horizontal", 34, 2, 37, 2),
    Sketcher.Constraint("Horizontal", 39, 2, 40, 2),
    Sketcher.Constraint("Horizontal", 38, 2, 41, 2),
    Sketcher.Constraint("Horizontal", 43, 2, 44, 2),
    Sketcher.Constraint("Horizontal", 42, 2, 45, 2),
    Sketcher.Constraint("Horizontal", 47, 2, 48, 2),
    Sketcher.Constraint("Horizontal", 46, 2, 49, 2),
    Sketcher.Constraint("Horizontal", 51, 2, 52, 2),
    Sketcher.Constraint("Horizontal", 50, 2, 53, 2),
    Sketcher.Constraint("Horizontal", 55, 2, 56, 2),
    Sketcher.Constraint("Horizontal", 54, 2, 57, 2),
    Sketcher.Constraint("Horizontal", 59, 2, 60, 2),
    Sketcher.Constraint("Horizontal", 58, 2, 61, 2),
    Sketcher.Constraint("Horizontal", 63, 2, 64, 2),
    Sketcher.Constraint("Horizontal", 62, 2, 65, 2),
    Sketcher.Constraint("Horizontal", 67, 2, 68, 2),
    Sketcher.Constraint("Horizontal", 66, 2, 69, 2),
    Sketcher.Constraint("Horizontal", 71, 2, 72, 2),
    Sketcher.Constraint("Horizontal", 70, 2, 73, 2),
    Sketcher.Constraint("Horizontal", 75, 2, 76, 2),
    Sketcher.Constraint("Horizontal", 74, 2, 77, 2),
    Sketcher.Constraint("Equal", 2, 4),
    Sketcher.Constraint("Equal", 6, 8),
    Sketcher.Constraint("Equal", 10, 12),
    Sketcher.Constraint("Equal", 14, 16),
    Sketcher.Constraint("Equal", 18, 20),
    Sketcher.Constraint("Equal", 22, 24),
    Sketcher.Constraint("Equal", 26, 28),
    Sketcher.Constraint("Equal", 30, 32),
    Sketcher.Constraint("Equal", 34, 36),
    Sketcher.Constraint("Equal", 38, 40),
    Sketcher.Constraint("Equal", 42, 44),
    Sketcher.Constraint("Equal", 46, 48),
    Sketcher.Constraint("Equal", 50, 52),
    Sketcher.Constraint("Equal", 54, 56),
    Sketcher.Constraint("Equal", 58, 60),
    Sketcher.Constraint("Equal", 62, 64),
    Sketcher.Constraint("Equal", 66, 68),
    Sketcher.Constraint("Equal", 70, 72),
    Sketcher.Constraint("Equal", 74, 76),
    Sketcher.Constraint("DistanceX", 0, 2, 0, 1, 5.0),
    Sketcher.Constraint("DistanceY", 1, 2, 1, 1, 50.0),
    Sketcher.Constraint("DistanceX", -1, 1, 0, 2, 15.0),
    Sketcher.Constraint("DistanceY", 0, 2, -1, 1, 135.0),
    Sketcher.Constraint("DistanceX", -1, 1, 4, 2, 25.0),
    Sketcher.Constraint("DistanceX", -1, 1, 8, 2, 45.0),
    Sketcher.Constraint("DistanceX", -1, 1, 12, 2, 35.0),
    Sketcher.Constraint("DistanceX", -1, 1, 16, 2, 65.0),
    Sketcher.Constraint("DistanceX", -1, 1, 20, 2, 75.0),
    Sketcher.Constraint("DistanceX", -1, 1, 24, 2, 85.0),
    Sketcher.Constraint("DistanceX", -1, 1, 28, 2, 55.0),
    Sketcher.Constraint("DistanceX", -1, 1, 32, 2, 105.0),
    Sketcher.Constraint("DistanceX", -1, 1, 36, 2, 155.0),
    Sketcher.Constraint("DistanceX", -1, 1, 40, 2, 115.0),
    Sketcher.Constraint("DistanceX", -1, 1, 44, 2, 165.0),
    Sketcher.Constraint("DistanceX", -1, 1, 48, 2, 125.0),
    Sketcher.Constraint("DistanceX", -1, 1, 52, 2, 95.0),
    Sketcher.Constraint("DistanceX", -1, 1, 56, 2, 145.0),
    Sketcher.Constraint("DistanceX", -1, 1, 60, 2, 135.0),
    Sketcher.Constraint("DistanceX", -1, 1, 64, 2, 175.0),
    Sketcher.Constraint("DistanceX", -1, 1, 68, 2, 185.0),
    Sketcher.Constraint("DistanceX", -1, 1, 72, 2, 205.0),
    Sketcher.Constraint("DistanceX", -1, 1, 76, 2, 195.0),
])
pocket4 = body.newObject("PartDesign::Pocket", "Pocket003")
pocket4.Profile = sketch5
pocket4.Length = 5

sketch6 = body.newObject("Sketcher::SketchObject", "Sketch005")
sketch6.AttachmentSupport = (doc.getObject("XZ_Plane"), [""])
sketch6.MapMode = "FlatFace"
sketch6.AttachmentOffset = App.Placement(App.Vector(0, 0, -600), App.Rotation())
sketch6.addGeometry([
    Part.LineSegment(App.Vector(35, -20, 0), App.Vector(-35, -20, 0)),
    Part.ArcOfCircle(Part.Circle(App.Vector(-35, -15, 0), App.Vector(0, 0, 1), 5), math.radians(90), math.radians(270)),
    Part.LineSegment(App.Vector(-35, -10, 0), App.Vector(35, -10, 0)),
    Part.ArcOfCircle(Part.Circle(App.Vector(35, -15, 0), App.Vector(0, 0, 1), 5), math.radians(-90), math.radians(90)),
], False)
sketch6.addConstraint([
    Sketcher.Constraint("Tangent", 0, 2, 1, 2),
    Sketcher.Constraint("Tangent", 1, 1, 2, 1),
    Sketcher.Constraint("Tangent", 2, 2, 3, 2),
    Sketcher.Constraint("Tangent", 3, 1, 0, 1),
    Sketcher.Constraint("Horizontal", 0),
    Sketcher.Constraint("Horizontal", 2),
    Sketcher.Constraint("Radius", 1, 5.0),
    Sketcher.Constraint("DistanceX", 0, 2, 0, 1, 70.0),
    Sketcher.Constraint("DistanceX", 1, 3, -1, 1, 35.0),
    Sketcher.Constraint("DistanceY", 1, 3, -1, 1, 15.0),
])
pocket5 = body.newObject("PartDesign::Pocket", "Pocket004")
pocket5.Profile = sketch6
pocket5.Length = 5
pocket5.Reversed = True

sketch7 = body.newObject("Sketcher::SketchObject", "Sketch006")
sketch7.AttachmentSupport = (doc.getObject("XZ_Plane"), [""])
sketch7.MapMode = "FlatFace"
sketch7.AttachmentOffset = App.Placement(App.Vector(0, 0, -600), App.Rotation())
sketch7.addGeometry([
    Part.LineSegment(App.Vector(-270, -175, 0), App.Vector(-270, -75, 0)),
    Part.LineSegment(App.Vector(-270, -75, 0), App.Vector(-260, -75, 0)),
    Part.LineSegment(App.Vector(-260, -75, 0), App.Vector(-260, -175, 0)),
    Part.LineSegment(App.Vector(-260, -175, 0), App.Vector(-270, -175, 0)),
], False)
sketch7.addConstraint([
    Sketcher.Constraint("Coincident", 0, 2, 1, 1),
    Sketcher.Constraint("Coincident", 1, 2, 2, 1),
    Sketcher.Constraint("Coincident", 2, 2, 3, 1),
    Sketcher.Constraint("Coincident", 3, 2, 0, 1),
    Sketcher.Constraint("Vertical", 0),
    Sketcher.Constraint("Horizontal", 1),
    Sketcher.Constraint("Vertical", 2),
    Sketcher.Constraint("Horizontal", 3),
    Sketcher.Constraint("DistanceX", 1, 1, 1, 2, 10.0),
    Sketcher.Constraint("DistanceY", 0, 1, 0, 2, 100.0),
    Sketcher.Constraint("DistanceX", 0, 2, -1, 1, 270.0),
    Sketcher.Constraint("DistanceY", 0, 2, -1, 1, 75.0),
])
pad2 = body.newObject("PartDesign::Pad", "Pad001")
pad2.Profile = sketch7
pad2.Length = 50
pad2.Reversed = True

sketch8 = body.newObject("Sketcher::SketchObject", "Sketch007")
sketch8.AttachmentSupport = (doc.getObject("YZ_Plane"), [""])
sketch8.MapMode = "FlatFace"
sketch8.AttachmentOffset = App.Placement(App.Vector(0, 0, -270), App.Rotation())
sketch8.addGeometry([
    Part.LineSegment(App.Vector(640, -165, 0), App.Vector(600, -165, 0)),
    Part.LineSegment(App.Vector(600, -165, 0), App.Vector(600, -85, 0)),
    Part.LineSegment(App.Vector(600, -85, 0), App.Vector(640, -85, 0)),
    Part.LineSegment(App.Vector(640, -85, 0), App.Vector(640, -165, 0)),
], False)
sketch8.addConstraint([
    Sketcher.Constraint("Coincident", 0, 2, 1, 1),
    Sketcher.Constraint("Coincident", 1, 2, 2, 1),
    Sketcher.Constraint("Coincident", 2, 2, 3, 1),
    Sketcher.Constraint("Coincident", 3, 2, 0, 1),
    Sketcher.Constraint("Horizontal", 0),
    Sketcher.Constraint("Vertical", 1),
    Sketcher.Constraint("Horizontal", 2),
    Sketcher.Constraint("Vertical", 3),
    Sketcher.Constraint("DistanceX", 0, 2, 0, 1, 40.0),
    Sketcher.Constraint("DistanceY", 1, 1, 1, 2, 80.0),
    Sketcher.Constraint("DistanceX", -1, 1, 0, 2, 600.0),
    Sketcher.Constraint("DistanceY", 0, 2, -1, 1, 165.0),
])
pocket6 = body.newObject("PartDesign::Pocket", "Pocket005")
pocket6.Profile = sketch8
pocket6.Length = 10
pocket6.Reversed = True

sketch9 = body.newObject("Sketcher::SketchObject", "Sketch008")
sketch9.AttachmentSupport = (doc.getObject("XZ_Plane"), [""])
sketch9.MapMode = "FlatFace"
sketch9.AttachmentOffset = App.Placement(App.Vector(0, 0, -600), App.Rotation())
sketch9.addGeometry([
    Part.LineSegment(App.Vector(260, -175, 0), App.Vector(260, -75, 0)),
    Part.LineSegment(App.Vector(260, -75, 0), App.Vector(270, -75, 0)),
    Part.LineSegment(App.Vector(270, -75, 0), App.Vector(270, -175, 0)),
    Part.LineSegment(App.Vector(270, -175, 0), App.Vector(260, -175, 0)),
], False)
sketch9.addConstraint([
    Sketcher.Constraint("Coincident", 0, 2, 1, 1),
    Sketcher.Constraint("Coincident", 1, 2, 2, 1),
    Sketcher.Constraint("Coincident", 2, 2, 3, 1),
    Sketcher.Constraint("Coincident", 3, 2, 0, 1),
    Sketcher.Constraint("Vertical", 0),
    Sketcher.Constraint("Horizontal", 1),
    Sketcher.Constraint("Vertical", 2),
    Sketcher.Constraint("Horizontal", 3),
    Sketcher.Constraint("DistanceX", 1, 1, 1, 2, 10.0),
    Sketcher.Constraint("DistanceY", 0, 1, 0, 2, 100.0),
    Sketcher.Constraint("DistanceX", -1, 1, 0, 2, 260.0),
    Sketcher.Constraint("DistanceY", 0, 2, -1, 1, 75.0),
])
pad3 = body.newObject("PartDesign::Pad", "Pad002")
pad3.Profile = sketch9
pad3.Length = 50
pad3.Reversed = True

sketch10 = body.newObject("Sketcher::SketchObject", "Sketch009")
sketch10.AttachmentSupport = (doc.getObject("YZ_Plane"), [""])
sketch10.MapMode = "FlatFace"
sketch10.AttachmentOffset = App.Placement(App.Vector(0, 0, 260), App.Rotation())
sketch10.addGeometry([
    Part.LineSegment(App.Vector(640, -165, 0), App.Vector(600, -165, 0)),
    Part.LineSegment(App.Vector(600, -165, 0), App.Vector(600, -85, 0)),
    Part.LineSegment(App.Vector(600, -85, 0), App.Vector(640, -85, 0)),
    Part.LineSegment(App.Vector(640, -85, 0), App.Vector(640, -165, 0)),
], False)
sketch10.addConstraint([
    Sketcher.Constraint("Coincident", 0, 2, 1, 1),
    Sketcher.Constraint("Coincident", 1, 2, 2, 1),
    Sketcher.Constraint("Coincident", 2, 2, 3, 1),
    Sketcher.Constraint("Coincident", 3, 2, 0, 1),
    Sketcher.Constraint("Horizontal", 0),
    Sketcher.Constraint("Vertical", 1),
    Sketcher.Constraint("Horizontal", 2),
    Sketcher.Constraint("Vertical", 3),
    Sketcher.Constraint("DistanceX", 0, 2, 0, 1, 40.0),
    Sketcher.Constraint("DistanceY", 1, 1, 1, 2, 80.0),
    Sketcher.Constraint("DistanceX", -1, 1, 0, 2, 600.0),
    Sketcher.Constraint("DistanceY", 0, 2, -1, 1, 165.0),
])
pocket7 = body.newObject("PartDesign::Pocket", "Pocket006")
pocket7.Profile = sketch10
pocket7.Length = 10
pocket7.Reversed = True

doc.recompute()
